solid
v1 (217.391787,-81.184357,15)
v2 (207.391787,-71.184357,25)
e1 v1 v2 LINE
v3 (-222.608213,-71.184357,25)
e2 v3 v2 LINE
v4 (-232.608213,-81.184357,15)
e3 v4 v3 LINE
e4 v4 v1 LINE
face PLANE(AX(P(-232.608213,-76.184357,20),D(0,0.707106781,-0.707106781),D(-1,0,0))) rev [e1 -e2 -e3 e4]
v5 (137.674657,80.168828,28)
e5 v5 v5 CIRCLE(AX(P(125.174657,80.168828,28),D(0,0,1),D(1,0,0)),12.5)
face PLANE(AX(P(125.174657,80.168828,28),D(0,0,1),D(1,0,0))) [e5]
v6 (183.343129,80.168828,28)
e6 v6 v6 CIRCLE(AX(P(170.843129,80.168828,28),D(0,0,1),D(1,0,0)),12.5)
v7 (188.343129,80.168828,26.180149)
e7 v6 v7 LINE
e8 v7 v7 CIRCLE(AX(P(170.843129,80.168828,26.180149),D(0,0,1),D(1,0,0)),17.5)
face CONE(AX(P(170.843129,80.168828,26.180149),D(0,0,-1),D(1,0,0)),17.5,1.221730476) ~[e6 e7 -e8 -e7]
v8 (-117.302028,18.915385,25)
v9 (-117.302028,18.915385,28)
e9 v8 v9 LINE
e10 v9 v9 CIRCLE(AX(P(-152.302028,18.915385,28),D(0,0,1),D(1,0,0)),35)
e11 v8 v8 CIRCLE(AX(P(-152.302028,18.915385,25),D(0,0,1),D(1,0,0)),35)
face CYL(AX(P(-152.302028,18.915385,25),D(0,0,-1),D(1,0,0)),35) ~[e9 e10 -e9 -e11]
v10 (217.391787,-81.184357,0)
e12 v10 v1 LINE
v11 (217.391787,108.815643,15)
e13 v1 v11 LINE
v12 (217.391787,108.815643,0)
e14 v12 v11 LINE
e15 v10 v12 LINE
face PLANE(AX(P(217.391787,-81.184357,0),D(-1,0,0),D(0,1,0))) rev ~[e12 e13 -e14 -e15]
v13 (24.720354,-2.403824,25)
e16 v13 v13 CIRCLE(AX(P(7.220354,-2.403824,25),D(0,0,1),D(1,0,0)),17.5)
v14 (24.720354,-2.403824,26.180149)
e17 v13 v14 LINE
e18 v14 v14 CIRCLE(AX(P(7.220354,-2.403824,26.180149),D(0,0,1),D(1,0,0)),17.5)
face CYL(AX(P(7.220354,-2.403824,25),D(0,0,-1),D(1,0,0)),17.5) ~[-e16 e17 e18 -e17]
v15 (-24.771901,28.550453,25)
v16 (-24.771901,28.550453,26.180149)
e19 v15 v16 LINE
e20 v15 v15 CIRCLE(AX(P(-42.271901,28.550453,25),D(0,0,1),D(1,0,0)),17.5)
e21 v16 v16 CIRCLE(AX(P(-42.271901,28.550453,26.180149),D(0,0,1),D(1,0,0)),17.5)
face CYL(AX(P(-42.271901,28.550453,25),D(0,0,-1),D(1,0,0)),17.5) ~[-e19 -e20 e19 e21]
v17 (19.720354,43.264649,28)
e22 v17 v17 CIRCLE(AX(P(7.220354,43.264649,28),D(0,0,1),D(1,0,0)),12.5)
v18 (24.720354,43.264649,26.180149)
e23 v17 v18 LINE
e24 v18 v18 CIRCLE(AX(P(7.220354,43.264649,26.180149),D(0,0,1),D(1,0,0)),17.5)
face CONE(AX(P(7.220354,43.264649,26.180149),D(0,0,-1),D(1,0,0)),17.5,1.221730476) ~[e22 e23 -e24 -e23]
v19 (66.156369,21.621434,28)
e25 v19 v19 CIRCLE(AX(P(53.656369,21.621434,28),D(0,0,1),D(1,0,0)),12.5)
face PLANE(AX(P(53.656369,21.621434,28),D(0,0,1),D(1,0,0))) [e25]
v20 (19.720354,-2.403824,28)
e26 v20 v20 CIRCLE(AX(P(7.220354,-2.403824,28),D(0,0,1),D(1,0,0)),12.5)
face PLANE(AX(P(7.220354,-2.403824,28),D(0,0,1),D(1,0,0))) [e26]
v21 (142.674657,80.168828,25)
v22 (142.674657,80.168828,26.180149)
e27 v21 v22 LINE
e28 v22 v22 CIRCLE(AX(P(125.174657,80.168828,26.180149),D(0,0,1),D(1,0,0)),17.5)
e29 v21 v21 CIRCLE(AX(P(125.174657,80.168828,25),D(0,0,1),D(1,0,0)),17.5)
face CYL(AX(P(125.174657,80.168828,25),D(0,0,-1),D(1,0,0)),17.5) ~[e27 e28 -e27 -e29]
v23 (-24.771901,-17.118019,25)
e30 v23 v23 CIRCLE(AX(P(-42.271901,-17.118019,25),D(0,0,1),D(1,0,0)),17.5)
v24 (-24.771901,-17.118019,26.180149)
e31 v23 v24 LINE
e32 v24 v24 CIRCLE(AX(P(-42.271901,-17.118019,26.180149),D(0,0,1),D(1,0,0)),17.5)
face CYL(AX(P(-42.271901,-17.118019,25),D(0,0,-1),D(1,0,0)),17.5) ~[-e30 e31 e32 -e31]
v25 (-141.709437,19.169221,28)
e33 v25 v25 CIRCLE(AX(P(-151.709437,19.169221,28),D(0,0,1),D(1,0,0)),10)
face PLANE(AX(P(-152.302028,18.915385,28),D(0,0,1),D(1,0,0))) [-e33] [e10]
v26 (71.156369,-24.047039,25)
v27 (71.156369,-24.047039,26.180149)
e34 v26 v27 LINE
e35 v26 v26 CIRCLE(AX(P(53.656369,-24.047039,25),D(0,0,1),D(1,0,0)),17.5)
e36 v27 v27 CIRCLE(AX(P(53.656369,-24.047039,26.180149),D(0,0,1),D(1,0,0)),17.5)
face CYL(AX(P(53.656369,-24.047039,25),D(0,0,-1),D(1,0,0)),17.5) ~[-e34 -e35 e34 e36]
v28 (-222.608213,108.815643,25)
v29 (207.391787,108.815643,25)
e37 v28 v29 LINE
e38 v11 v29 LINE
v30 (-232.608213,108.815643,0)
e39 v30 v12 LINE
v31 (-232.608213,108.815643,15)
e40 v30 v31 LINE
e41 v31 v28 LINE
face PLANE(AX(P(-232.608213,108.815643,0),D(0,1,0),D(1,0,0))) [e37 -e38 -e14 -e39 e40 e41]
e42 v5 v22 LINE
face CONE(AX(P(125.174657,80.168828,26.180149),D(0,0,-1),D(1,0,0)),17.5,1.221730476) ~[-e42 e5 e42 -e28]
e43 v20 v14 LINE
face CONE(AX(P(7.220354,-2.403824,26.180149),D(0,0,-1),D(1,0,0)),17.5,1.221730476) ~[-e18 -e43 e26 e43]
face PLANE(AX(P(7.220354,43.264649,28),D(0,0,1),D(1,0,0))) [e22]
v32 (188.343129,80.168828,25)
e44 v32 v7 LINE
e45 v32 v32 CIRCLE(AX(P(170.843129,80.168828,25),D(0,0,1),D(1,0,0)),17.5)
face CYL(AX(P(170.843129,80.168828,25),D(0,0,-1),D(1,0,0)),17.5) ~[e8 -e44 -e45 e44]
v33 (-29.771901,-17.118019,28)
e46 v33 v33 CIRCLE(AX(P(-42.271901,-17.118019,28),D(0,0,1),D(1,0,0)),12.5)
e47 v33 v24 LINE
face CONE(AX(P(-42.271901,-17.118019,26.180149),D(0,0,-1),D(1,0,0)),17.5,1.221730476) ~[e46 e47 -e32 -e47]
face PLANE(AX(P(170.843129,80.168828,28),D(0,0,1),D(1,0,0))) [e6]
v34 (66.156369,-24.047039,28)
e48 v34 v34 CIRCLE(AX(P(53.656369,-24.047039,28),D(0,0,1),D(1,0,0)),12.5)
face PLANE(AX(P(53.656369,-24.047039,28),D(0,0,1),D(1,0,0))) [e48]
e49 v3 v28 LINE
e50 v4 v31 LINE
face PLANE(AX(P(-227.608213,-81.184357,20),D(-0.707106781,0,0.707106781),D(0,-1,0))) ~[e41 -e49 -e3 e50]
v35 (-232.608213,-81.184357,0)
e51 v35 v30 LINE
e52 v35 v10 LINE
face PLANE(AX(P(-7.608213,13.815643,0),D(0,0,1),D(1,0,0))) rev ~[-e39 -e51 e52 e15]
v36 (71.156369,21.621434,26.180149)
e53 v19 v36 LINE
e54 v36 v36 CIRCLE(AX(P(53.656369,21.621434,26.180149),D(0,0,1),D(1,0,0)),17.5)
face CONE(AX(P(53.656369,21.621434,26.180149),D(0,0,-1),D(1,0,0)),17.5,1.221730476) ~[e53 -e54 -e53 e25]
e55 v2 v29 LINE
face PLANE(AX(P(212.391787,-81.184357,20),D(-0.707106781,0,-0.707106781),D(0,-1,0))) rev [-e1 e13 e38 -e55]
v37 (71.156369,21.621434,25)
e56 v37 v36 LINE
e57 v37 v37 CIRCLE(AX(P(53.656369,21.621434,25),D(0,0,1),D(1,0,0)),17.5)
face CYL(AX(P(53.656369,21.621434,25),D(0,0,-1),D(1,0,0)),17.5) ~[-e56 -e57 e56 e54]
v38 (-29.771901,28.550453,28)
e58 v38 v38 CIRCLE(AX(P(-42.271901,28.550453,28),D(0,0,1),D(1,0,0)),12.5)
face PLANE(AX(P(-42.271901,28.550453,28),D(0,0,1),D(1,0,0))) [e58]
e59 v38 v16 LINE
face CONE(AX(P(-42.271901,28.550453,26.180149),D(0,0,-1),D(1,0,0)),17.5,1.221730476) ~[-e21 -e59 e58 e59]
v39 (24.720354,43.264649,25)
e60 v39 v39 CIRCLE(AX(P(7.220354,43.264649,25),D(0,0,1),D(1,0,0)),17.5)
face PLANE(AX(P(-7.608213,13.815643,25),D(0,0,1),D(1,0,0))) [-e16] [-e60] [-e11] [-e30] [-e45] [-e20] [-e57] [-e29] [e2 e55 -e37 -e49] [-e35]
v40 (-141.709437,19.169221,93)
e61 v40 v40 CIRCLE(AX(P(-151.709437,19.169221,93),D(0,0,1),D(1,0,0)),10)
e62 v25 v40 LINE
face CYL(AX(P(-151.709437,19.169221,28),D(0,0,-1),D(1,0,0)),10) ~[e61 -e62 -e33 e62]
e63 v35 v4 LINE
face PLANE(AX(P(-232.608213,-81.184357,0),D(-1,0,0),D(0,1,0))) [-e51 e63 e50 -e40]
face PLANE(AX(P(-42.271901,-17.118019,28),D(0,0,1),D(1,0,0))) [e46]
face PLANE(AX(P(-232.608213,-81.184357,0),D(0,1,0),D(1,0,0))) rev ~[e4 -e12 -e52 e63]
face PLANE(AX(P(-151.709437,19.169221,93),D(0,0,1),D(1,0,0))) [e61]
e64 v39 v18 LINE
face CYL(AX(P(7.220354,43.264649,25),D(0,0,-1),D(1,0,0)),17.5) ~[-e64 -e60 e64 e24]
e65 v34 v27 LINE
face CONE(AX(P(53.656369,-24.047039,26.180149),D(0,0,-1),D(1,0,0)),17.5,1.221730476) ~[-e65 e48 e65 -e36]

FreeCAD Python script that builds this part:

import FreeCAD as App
import Part
import Sketcher
from FreeCAD import Vector
Q = App.Units.Quantity


def edges_at(feature, points):
    """Names of the edges that pass closest to the given points."""
    edges = feature.Shape.Edges
    near = lambda p: min(range(len(edges)), key=lambda i: edges[i].distToShape(Part.Vertex(*p))[0])
    return sorted({f"Edge{near(p) + 1}" for p in points})

doc = App.newDocument("Part")
body = doc.addObject("PartDesign::Body", "Body")

# Sketch on XY plane
sketch1 = doc.addObject("Sketcher::SketchObject", "Sketch")
body.addObject(sketch1)
sketch1.AttachmentSupport = (doc.XY_Plane, [""])
sketch1.MapMode = "FlatFace"
sketch1.addGeometry(Part.LineSegment(Vector(-233, 109, 0), Vector(-233, -81, 0)), False)
sketch1.addGeometry(Part.LineSegment(Vector(-233, -81, 0), Vector(217, -81, 0)), False)
sketch1.addGeometry(Part.LineSegment(Vector(217, -81, 0), Vector(217, 109, 0)), False)
sketch1.addGeometry(Part.LineSegment(Vector(217, 109, 0), Vector(-233, 109, 0)), False)
sketch1.addConstraint(Sketcher.Constraint("Coincident", 0, 2, 1, 1))
sketch1.addConstraint(Sketcher.Constraint("Coincident", 1, 2, 2, 1))
sketch1.addConstraint(Sketcher.Constraint("Coincident", 2, 2, 3, 1))
sketch1.addConstraint(Sketcher.Constraint("Coincident", 3, 2, 0, 1))
sketch1.addConstraint(Sketcher.Constraint("Vertical", 0))
sketch1.addConstraint(Sketcher.Constraint("Horizontal", 1))
sketch1.addConstraint(Sketcher.Constraint("Vertical", 2))
sketch1.addConstraint(Sketcher.Constraint("Horizontal", 3))
sketch1.addConstraint(Sketcher.Constraint("DistanceX", 1, 1, 1, 2, Q("450 mm")))
sketch1.addConstraint(Sketcher.Constraint("DistanceY", 0, 2, 0, 1, Q("190 mm")))
sketch1.addConstraint(Sketcher.Constraint("DistanceX", 0, 2, -1, 1, Q("232.608213 mm")))
sketch1.addConstraint(Sketcher.Constraint("DistanceY", 0, 2, -1, 1, Q("81.184357 mm")))
pad1 = doc.addObject("PartDesign::Pad", "Pad")
body.addObject(pad1)
pad1.Profile = sketch1
pad1.Length = 25
doc.recompute()

chamfer = doc.addObject("PartDesign::Chamfer", "Chamfer")
body.addObject(chamfer)
chamfer.Base = (pad1, edges_at(pad1, [(-232.608, 13.816, 25), (217.392, 13.816, 25), (-7.608, -81.184, 25)]))
chamfer.Size = 10

# Sketch on XY plane
sketch2 = doc.addObject("Sketcher::SketchObject", "Sketch001")
body.addObject(sketch2)
sketch2.AttachmentSupport = (doc.XY_Plane, [""])
sketch2.MapMode = "FlatFace"
sketch2.AttachmentOffset = App.Placement(Vector(0, 0, 25), App.Rotation())
sketch2.addGeometry(Part.Circle(Vector(-152, 19, 0), Vector(0, 0, 1), 35), False)
sketch2.addGeometry(Part.Circle(Vector(-42, 29, 0), Vector(0, 0, 1), 18), False)
sketch2.addGeometry(Part.Circle(Vector(-42, -17, 0), Vector(0, 0, 1), 18), False)
sketch2.addGeometry(Part.Circle(Vector(7, 43, 0), Vector(0, 0, 1), 18), False)
sketch2.addGeometry(Part.Circle(Vector(7, -2, 0), Vector(0, 0, 1), 18), False)
sketch2.addGeometry(Part.Circle(Vector(54, 22, 0), Vector(0, 0, 1), 18), False)
sketch2.addGeometry(Part.Circle(Vector(171, 80, 0), Vector(0, 0, 1), 18), False)
sketch2.addGeometry(Part.Circle(Vector(125, 80, 0), Vector(0, 0, 1), 18), False)
sketch2.addGeometry(Part.Circle(Vector(54, -24, 0), Vector(0, 0, 1), 18), False)
sketch2.addConstraint(Sketcher.Constraint("Equal", 1, 2))
sketch2.addConstraint(Sketcher.Constraint("Equal", 2, 3))
sketch2.addConstraint(Sketcher.Constraint("Equal", 3, 4))
sketch2.addConstraint(Sketcher.Constraint("Equal", 4, 5))
sketch2.addConstraint(Sketcher.Constraint("Equal", 5, 6))
sketch2.addConstraint(Sketcher.Constraint("Equal", 6, 7))
sketch2.addConstraint(Sketcher.Constraint("Equal", 7, 8))
sketch2.addConstraint(Sketcher.Constraint("Horizontal", 6, 3, 7, 3))
sketch2.addConstraint(Sketcher.Constraint("Vertical", 1, 3, 2, 3))
sketch2.addConstraint(Sketcher.Constraint("Vertical", 3, 3, 4, 3))
sketch2.addConstraint(Sketcher.Constraint("Vertical", 5, 3, 8, 3))
sketch2.addConstraint(Sketcher.Constraint("Diameter", 0, Q("70 mm")))
sketch2.addConstraint(Sketcher.Constraint("Diameter", 1, Q("35 mm")))
sketch2.addConstraint(Sketcher.Constraint("DistanceX", 1, 3, -1, 1, Q("42.271901 mm")))
sketch2.addConstraint(Sketcher.Constraint("DistanceX", 0, 3, -1, 1, Q("152.302028 mm")))
sketch2.addConstraint(Sketcher.Constraint("DistanceY", 2, 3, -1, 1, Q("17.118019 mm")))
sketch2.addConstraint(Sketcher.Constraint("DistanceY", -1, 1, 3, 3, Q("43.264649 mm")))
sketch2.addConstraint(Sketcher.Constraint("DistanceX", -1, 1, 5, 3, Q("53.656369 mm")))
sketch2.addConstraint(Sketcher.Constraint("DistanceX", -1, 1, 6, 3, Q("170.843129 mm")))
sketch2.addConstraint(Sketcher.Constraint("DistanceY", -1, 1, 6, 3, Q("80.168828 mm")))
sketch2.addConstraint(Sketcher.Constraint("DistanceY", 8, 3, -1, 1, Q("24.047039 mm")))
sketch2.addConstraint(Sketcher.Constraint("DistanceY", 0, 3, 1, 3, Q("9.635069 mm")))
sketch2.addConstraint(Sketcher.Constraint("DistanceY", 4, 3, 0, 3, Q("21.319209 mm")))
sketch2.addConstraint(Sketcher.Constraint("DistanceY", 5, 3, 1, 3, Q("6.92902 mm")))
sketch2.addConstraint(Sketcher.Constraint("DistanceY", -1, 1, 0, 3, Q("18.915385 mm")))
sketch2.addConstraint(Sketcher.Constraint("DistanceX", -1, 1, 3, 3, Q("7.220354 mm")))
sketch2.addConstraint(Sketcher.Constraint("DistanceX", -1, 1, 7, 3, Q("125.174657 mm")))
pad2 = doc.addObject("PartDesign::Pad", "Pad001")
body.addObject(pad2)
pad2.Profile = sketch2
pad2.Length = 3
doc.recompute()

chamfer2 = doc.addObject("PartDesign::Chamfer", "Chamfer001")
body.addObject(chamfer2)
chamfer2.Base = (pad2, edges_at(pad2, [(-59.772, -17.118, 28)]))
chamfer2.ChamferType = "Two distances"
chamfer2.Size = 5
chamfer2.Size2 = 1.819851
chamfer2.FlipDirection = True
doc.recompute()

chamfer3 = doc.addObject("PartDesign::Chamfer", "Chamfer002")
body.addObject(chamfer3)
chamfer3.Base = (chamfer2, edges_at(chamfer2, [(36.156, -24.047, 28)]))
chamfer3.ChamferType = "Two distances"
chamfer3.Size = 5
chamfer3.Size2 = 1.819851
chamfer3.FlipDirection = True
doc.recompute()

chamfer4 = doc.addObject("PartDesign::Chamfer", "Chamfer003")
body.addObject(chamfer4)
chamfer4.Base = (chamfer3, edges_at(chamfer3, [(-10.28, -2.404, 28)]))
chamfer4.ChamferType = "Two distances"
chamfer4.Size = 5
chamfer4.Size2 = 1.819851
chamfer4.FlipDirection = True
doc.recompute()

chamfer5 = doc.addObject("PartDesign::Chamfer", "Chamfer004")
body.addObject(chamfer5)
chamfer5.Base = (chamfer4, edges_at(chamfer4, [(36.156, 21.621, 28)]))
chamfer5.ChamferType = "Two distances"
chamfer5.Size = 5
chamfer5.Size2 = 1.819851
chamfer5.FlipDirection = True
doc.recompute()

chamfer6 = doc.addObject("PartDesign::Chamfer", "Chamfer005")
body.addObject(chamfer6)
chamfer6.Base = (chamfer5, edges_at(chamfer5, [(-59.772, 28.55, 28)]))
chamfer6.ChamferType = "Two distances"
chamfer6.Size = 5
chamfer6.Size2 = 1.819851
chamfer6.FlipDirection = True
doc.recompute()

chamfer7 = doc.addObject("PartDesign::Chamfer", "Chamfer006")
body.addObject(chamfer7)
chamfer7.Base = (chamfer6, edges_at(chamfer6, [(-10.28, 43.265, 28)]))
chamfer7.ChamferType = "Two distances"
chamfer7.Size = 5
chamfer7.Size2 = 1.819851
chamfer7.FlipDirection = True
doc.recompute()

chamfer8 = doc.addObject("PartDesign::Chamfer", "Chamfer007")
body.addObject(chamfer8)
chamfer8.Base = (chamfer7, edges_at(chamfer7, [(107.675, 80.169, 28)]))
chamfer8.ChamferType = "Two distances"
chamfer8.Size = 5
chamfer8.Size2 = 1.819851
chamfer8.FlipDirection = True
doc.recompute()

chamfer9 = doc.addObject("PartDesign::Chamfer", "Chamfer008")
body.addObject(chamfer9)
chamfer9.Base = (chamfer8, edges_at(chamfer8, [(153.343, 80.169, 28)]))
chamfer9.ChamferType = "Two distances"
chamfer9.Size = 5
chamfer9.Size2 = 1.819851
chamfer9.FlipDirection = True

# Sketch on XY plane
sketch3 = doc.addObject("Sketcher::SketchObject", "Sketch002")
body.addObject(sketch3)
sketch3.AttachmentSupport = (doc.XY_Plane, [""])
sketch3.MapMode = "FlatFace"
sketch3.AttachmentOffset = App.Placement(Vector(0, 0, 28), App.Rotation())
sketch3.addGeometry(Part.Circle(Vector(-152, 19, 0), Vector(0, 0, 1), 10), False)
sketch3.addConstraint(Sketcher.Constraint("Diameter", 0, Q("20 mm")))
sketch3.addConstraint(Sketcher.Constraint("DistanceY", -1, 1, 0, 3, Q("19.169221 mm")))
sketch3.addConstraint(Sketcher.Constraint("DistanceX", 0, 3, -1, 1, Q("151.709437 mm")))
pad3 = doc.addObject("PartDesign::Pad", "Pad002")
body.addObject(pad3)
pad3.Profile = sketch3
pad3.Length = 65

doc.recompute()
